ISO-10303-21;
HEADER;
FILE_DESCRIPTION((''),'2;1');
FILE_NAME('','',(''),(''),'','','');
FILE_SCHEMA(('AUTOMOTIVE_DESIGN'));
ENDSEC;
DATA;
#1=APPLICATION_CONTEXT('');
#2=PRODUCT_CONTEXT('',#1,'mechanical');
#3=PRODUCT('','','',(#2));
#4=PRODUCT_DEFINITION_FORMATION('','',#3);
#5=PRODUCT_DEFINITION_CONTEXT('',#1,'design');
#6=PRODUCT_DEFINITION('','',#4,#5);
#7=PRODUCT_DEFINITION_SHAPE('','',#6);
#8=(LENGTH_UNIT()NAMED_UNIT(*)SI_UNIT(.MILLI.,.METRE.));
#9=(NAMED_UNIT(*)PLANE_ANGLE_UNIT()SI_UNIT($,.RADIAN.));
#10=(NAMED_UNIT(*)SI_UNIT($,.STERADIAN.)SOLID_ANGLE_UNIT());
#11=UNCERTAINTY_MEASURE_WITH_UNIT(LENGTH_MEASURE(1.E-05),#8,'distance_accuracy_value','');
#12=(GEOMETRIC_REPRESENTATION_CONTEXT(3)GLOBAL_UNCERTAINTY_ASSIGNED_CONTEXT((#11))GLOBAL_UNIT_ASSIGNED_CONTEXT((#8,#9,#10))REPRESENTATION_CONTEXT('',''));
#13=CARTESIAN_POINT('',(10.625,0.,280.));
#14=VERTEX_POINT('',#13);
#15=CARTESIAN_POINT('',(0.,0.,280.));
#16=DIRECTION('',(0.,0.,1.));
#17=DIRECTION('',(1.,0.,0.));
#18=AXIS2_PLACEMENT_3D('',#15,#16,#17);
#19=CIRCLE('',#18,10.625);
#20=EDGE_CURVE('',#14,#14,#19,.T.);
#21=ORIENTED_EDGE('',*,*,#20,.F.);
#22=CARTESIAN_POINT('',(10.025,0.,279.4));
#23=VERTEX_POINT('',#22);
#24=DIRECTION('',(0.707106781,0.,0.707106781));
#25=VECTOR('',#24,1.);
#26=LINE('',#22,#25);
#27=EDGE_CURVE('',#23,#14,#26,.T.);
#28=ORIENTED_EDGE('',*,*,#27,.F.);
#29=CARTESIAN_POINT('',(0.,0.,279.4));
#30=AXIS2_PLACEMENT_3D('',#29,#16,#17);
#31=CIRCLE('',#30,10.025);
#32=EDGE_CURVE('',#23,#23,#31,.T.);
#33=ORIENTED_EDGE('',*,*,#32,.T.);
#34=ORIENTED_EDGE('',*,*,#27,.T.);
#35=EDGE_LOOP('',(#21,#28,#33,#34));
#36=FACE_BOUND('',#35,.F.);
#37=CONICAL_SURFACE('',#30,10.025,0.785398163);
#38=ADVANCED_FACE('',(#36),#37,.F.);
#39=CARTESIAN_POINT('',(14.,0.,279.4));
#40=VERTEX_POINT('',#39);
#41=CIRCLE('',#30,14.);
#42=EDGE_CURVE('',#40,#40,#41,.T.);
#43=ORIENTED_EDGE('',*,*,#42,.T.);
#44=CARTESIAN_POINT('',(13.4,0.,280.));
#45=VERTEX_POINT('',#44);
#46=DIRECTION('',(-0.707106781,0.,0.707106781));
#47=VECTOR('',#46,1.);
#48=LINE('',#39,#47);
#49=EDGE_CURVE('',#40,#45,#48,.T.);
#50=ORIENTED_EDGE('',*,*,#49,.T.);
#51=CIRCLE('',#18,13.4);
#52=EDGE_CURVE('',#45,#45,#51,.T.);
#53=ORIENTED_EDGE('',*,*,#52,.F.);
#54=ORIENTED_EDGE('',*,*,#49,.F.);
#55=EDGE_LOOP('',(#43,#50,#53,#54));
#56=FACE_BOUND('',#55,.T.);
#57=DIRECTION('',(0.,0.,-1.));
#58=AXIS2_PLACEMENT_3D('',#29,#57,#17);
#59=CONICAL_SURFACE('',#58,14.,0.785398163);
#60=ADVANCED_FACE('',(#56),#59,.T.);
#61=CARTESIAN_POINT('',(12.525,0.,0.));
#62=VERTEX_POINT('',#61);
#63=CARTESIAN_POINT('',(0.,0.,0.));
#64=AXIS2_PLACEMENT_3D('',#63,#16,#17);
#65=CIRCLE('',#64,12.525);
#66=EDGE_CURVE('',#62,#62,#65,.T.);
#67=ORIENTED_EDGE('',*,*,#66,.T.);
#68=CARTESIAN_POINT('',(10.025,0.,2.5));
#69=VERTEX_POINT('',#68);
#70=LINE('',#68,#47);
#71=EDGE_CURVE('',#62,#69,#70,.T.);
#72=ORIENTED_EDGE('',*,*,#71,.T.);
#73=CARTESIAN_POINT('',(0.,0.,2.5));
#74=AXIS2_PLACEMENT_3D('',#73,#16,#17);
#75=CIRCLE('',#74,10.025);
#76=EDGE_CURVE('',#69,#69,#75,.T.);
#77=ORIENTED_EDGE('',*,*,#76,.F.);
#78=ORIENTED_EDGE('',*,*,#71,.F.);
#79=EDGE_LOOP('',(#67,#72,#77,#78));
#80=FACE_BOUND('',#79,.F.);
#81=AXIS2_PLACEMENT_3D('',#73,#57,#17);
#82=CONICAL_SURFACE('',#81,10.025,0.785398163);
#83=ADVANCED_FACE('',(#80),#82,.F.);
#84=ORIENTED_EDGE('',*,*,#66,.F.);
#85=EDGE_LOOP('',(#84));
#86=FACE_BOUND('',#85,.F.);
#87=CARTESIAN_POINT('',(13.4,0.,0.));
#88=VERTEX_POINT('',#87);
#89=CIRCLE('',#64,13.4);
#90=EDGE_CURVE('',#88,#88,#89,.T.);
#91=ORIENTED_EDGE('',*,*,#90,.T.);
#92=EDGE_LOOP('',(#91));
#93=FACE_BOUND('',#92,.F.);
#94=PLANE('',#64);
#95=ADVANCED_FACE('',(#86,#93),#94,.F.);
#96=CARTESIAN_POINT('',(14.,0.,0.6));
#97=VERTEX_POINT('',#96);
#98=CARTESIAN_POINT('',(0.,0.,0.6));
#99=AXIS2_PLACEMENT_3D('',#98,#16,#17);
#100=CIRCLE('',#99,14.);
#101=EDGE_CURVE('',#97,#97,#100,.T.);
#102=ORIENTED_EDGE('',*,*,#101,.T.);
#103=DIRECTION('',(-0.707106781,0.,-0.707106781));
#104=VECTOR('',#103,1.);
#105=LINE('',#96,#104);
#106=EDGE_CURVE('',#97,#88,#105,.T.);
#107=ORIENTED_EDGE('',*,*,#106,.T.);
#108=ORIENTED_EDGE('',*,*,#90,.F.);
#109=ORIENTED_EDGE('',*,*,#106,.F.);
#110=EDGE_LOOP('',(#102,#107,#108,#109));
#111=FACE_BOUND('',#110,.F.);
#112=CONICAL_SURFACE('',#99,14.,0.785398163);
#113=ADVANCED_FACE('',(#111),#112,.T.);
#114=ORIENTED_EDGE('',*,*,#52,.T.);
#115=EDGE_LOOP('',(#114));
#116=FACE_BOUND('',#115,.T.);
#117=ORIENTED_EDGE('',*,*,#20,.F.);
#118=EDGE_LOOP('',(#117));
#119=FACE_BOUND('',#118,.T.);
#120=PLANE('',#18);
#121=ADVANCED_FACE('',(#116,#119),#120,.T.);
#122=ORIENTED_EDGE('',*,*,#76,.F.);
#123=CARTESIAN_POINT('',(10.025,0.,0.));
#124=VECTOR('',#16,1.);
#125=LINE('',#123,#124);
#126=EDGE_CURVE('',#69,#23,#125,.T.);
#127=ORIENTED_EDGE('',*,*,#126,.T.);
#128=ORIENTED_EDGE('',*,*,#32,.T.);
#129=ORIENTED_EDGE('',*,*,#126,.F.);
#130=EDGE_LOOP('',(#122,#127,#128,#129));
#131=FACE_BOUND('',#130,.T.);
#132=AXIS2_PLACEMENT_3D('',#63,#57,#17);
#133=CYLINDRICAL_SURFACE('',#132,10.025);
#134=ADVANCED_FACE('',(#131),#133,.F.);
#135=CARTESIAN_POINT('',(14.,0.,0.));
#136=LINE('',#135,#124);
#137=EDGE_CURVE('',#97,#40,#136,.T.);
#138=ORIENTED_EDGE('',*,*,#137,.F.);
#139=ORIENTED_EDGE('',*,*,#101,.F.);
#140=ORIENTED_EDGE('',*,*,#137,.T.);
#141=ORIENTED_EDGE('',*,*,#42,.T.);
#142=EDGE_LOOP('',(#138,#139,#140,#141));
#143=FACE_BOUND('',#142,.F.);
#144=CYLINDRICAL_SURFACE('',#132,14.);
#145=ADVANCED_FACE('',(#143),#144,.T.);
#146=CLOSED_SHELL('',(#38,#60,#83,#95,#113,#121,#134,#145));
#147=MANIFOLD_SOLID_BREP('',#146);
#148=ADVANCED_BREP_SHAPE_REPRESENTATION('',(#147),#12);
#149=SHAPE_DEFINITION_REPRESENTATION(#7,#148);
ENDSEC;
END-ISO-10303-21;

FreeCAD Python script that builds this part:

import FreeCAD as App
import Part
import Sketcher

V = App.Vector
Q = App.Units.Quantity


def edges_at(feature, points):
    """Names of the edges that pass closest to the given points."""
    edges = feature.Shape.Edges
    near = lambda p: min(range(len(edges)), key=lambda i: edges[i].distToShape(Part.Vertex(*p))[0])
    return sorted({f"Edge{near(p) + 1}" for p in points})

doc = App.newDocument("Part")
params = doc.addObject("Spreadsheet::Sheet", "Params")
for row, (alias, value) in enumerate([
    ("sketch1_diameter", "28 mm"),
    ("sketch1_diameter2", "20.05 mm"),
    ("pad1_length", "280 mm"),
    ("chamfer_size", "0.6 mm"),
    ("chamfer2_size", "2.5 mm"),
], start=1):
    params.set(f"A{row}", alias)
    params.set(f"B{row}", "=" + value)
    params.setAlias(f"B{row}", alias)

body = doc.addObject("PartDesign::Body", "Body")

# Sketch on XY plane
sketch1 = doc.addObject("Sketcher::SketchObject", "Sketch")
body.addObject(sketch1)
sketch1.AttachmentSupport = (doc.XY_Plane, [""])
sketch1.MapMode = "FlatFace"
sketch1.addGeometry([
    Part.Circle(V(0, 0, 0), V(0, 0, 1), 14),
    Part.Circle(V(0, 0, 0), V(0, 0, 1), 10),
], False)
sketch1.addConstraint([
    Sketcher.Constraint("Coincident", 0, 3, -1, 1),
    Sketcher.Constraint("Coincident", 1, 3, -1, 1),
    Sketcher.Constraint("Diameter", 0, Q("28 mm")),
    Sketcher.Constraint("Diameter", 1, Q("20.05 mm")),
])
sketch1.setExpression("Constraints[2]", "Params.sketch1_diameter")
sketch1.setExpression("Constraints[3]", "Params.sketch1_diameter2")
pad1 = doc.addObject("PartDesign::Pad", "Pad")
body.addObject(pad1)
pad1.Profile = sketch1
pad1.setExpression("Length", "Params.pad1_length")
doc.recompute()

chamfer = doc.addObject("PartDesign::Chamfer", "Chamfer")
body.addObject(chamfer)
chamfer.Base = (pad1, edges_at(pad1, [(-10.025, 0, 280), (-14, 0, 280), (-14, 0, 0)]))
chamfer.setExpression("Size", "Params.chamfer_size")
doc.recompute()

chamfer2 = doc.addObject("PartDesign::Chamfer", "Chamfer001")
body.addObject(chamfer2)
chamfer2.Base = (chamfer, edges_at(chamfer, [(-10.025, 0, 0)]))
chamfer2.setExpression("Size", "Params.chamfer2_size")

doc.recompute()
